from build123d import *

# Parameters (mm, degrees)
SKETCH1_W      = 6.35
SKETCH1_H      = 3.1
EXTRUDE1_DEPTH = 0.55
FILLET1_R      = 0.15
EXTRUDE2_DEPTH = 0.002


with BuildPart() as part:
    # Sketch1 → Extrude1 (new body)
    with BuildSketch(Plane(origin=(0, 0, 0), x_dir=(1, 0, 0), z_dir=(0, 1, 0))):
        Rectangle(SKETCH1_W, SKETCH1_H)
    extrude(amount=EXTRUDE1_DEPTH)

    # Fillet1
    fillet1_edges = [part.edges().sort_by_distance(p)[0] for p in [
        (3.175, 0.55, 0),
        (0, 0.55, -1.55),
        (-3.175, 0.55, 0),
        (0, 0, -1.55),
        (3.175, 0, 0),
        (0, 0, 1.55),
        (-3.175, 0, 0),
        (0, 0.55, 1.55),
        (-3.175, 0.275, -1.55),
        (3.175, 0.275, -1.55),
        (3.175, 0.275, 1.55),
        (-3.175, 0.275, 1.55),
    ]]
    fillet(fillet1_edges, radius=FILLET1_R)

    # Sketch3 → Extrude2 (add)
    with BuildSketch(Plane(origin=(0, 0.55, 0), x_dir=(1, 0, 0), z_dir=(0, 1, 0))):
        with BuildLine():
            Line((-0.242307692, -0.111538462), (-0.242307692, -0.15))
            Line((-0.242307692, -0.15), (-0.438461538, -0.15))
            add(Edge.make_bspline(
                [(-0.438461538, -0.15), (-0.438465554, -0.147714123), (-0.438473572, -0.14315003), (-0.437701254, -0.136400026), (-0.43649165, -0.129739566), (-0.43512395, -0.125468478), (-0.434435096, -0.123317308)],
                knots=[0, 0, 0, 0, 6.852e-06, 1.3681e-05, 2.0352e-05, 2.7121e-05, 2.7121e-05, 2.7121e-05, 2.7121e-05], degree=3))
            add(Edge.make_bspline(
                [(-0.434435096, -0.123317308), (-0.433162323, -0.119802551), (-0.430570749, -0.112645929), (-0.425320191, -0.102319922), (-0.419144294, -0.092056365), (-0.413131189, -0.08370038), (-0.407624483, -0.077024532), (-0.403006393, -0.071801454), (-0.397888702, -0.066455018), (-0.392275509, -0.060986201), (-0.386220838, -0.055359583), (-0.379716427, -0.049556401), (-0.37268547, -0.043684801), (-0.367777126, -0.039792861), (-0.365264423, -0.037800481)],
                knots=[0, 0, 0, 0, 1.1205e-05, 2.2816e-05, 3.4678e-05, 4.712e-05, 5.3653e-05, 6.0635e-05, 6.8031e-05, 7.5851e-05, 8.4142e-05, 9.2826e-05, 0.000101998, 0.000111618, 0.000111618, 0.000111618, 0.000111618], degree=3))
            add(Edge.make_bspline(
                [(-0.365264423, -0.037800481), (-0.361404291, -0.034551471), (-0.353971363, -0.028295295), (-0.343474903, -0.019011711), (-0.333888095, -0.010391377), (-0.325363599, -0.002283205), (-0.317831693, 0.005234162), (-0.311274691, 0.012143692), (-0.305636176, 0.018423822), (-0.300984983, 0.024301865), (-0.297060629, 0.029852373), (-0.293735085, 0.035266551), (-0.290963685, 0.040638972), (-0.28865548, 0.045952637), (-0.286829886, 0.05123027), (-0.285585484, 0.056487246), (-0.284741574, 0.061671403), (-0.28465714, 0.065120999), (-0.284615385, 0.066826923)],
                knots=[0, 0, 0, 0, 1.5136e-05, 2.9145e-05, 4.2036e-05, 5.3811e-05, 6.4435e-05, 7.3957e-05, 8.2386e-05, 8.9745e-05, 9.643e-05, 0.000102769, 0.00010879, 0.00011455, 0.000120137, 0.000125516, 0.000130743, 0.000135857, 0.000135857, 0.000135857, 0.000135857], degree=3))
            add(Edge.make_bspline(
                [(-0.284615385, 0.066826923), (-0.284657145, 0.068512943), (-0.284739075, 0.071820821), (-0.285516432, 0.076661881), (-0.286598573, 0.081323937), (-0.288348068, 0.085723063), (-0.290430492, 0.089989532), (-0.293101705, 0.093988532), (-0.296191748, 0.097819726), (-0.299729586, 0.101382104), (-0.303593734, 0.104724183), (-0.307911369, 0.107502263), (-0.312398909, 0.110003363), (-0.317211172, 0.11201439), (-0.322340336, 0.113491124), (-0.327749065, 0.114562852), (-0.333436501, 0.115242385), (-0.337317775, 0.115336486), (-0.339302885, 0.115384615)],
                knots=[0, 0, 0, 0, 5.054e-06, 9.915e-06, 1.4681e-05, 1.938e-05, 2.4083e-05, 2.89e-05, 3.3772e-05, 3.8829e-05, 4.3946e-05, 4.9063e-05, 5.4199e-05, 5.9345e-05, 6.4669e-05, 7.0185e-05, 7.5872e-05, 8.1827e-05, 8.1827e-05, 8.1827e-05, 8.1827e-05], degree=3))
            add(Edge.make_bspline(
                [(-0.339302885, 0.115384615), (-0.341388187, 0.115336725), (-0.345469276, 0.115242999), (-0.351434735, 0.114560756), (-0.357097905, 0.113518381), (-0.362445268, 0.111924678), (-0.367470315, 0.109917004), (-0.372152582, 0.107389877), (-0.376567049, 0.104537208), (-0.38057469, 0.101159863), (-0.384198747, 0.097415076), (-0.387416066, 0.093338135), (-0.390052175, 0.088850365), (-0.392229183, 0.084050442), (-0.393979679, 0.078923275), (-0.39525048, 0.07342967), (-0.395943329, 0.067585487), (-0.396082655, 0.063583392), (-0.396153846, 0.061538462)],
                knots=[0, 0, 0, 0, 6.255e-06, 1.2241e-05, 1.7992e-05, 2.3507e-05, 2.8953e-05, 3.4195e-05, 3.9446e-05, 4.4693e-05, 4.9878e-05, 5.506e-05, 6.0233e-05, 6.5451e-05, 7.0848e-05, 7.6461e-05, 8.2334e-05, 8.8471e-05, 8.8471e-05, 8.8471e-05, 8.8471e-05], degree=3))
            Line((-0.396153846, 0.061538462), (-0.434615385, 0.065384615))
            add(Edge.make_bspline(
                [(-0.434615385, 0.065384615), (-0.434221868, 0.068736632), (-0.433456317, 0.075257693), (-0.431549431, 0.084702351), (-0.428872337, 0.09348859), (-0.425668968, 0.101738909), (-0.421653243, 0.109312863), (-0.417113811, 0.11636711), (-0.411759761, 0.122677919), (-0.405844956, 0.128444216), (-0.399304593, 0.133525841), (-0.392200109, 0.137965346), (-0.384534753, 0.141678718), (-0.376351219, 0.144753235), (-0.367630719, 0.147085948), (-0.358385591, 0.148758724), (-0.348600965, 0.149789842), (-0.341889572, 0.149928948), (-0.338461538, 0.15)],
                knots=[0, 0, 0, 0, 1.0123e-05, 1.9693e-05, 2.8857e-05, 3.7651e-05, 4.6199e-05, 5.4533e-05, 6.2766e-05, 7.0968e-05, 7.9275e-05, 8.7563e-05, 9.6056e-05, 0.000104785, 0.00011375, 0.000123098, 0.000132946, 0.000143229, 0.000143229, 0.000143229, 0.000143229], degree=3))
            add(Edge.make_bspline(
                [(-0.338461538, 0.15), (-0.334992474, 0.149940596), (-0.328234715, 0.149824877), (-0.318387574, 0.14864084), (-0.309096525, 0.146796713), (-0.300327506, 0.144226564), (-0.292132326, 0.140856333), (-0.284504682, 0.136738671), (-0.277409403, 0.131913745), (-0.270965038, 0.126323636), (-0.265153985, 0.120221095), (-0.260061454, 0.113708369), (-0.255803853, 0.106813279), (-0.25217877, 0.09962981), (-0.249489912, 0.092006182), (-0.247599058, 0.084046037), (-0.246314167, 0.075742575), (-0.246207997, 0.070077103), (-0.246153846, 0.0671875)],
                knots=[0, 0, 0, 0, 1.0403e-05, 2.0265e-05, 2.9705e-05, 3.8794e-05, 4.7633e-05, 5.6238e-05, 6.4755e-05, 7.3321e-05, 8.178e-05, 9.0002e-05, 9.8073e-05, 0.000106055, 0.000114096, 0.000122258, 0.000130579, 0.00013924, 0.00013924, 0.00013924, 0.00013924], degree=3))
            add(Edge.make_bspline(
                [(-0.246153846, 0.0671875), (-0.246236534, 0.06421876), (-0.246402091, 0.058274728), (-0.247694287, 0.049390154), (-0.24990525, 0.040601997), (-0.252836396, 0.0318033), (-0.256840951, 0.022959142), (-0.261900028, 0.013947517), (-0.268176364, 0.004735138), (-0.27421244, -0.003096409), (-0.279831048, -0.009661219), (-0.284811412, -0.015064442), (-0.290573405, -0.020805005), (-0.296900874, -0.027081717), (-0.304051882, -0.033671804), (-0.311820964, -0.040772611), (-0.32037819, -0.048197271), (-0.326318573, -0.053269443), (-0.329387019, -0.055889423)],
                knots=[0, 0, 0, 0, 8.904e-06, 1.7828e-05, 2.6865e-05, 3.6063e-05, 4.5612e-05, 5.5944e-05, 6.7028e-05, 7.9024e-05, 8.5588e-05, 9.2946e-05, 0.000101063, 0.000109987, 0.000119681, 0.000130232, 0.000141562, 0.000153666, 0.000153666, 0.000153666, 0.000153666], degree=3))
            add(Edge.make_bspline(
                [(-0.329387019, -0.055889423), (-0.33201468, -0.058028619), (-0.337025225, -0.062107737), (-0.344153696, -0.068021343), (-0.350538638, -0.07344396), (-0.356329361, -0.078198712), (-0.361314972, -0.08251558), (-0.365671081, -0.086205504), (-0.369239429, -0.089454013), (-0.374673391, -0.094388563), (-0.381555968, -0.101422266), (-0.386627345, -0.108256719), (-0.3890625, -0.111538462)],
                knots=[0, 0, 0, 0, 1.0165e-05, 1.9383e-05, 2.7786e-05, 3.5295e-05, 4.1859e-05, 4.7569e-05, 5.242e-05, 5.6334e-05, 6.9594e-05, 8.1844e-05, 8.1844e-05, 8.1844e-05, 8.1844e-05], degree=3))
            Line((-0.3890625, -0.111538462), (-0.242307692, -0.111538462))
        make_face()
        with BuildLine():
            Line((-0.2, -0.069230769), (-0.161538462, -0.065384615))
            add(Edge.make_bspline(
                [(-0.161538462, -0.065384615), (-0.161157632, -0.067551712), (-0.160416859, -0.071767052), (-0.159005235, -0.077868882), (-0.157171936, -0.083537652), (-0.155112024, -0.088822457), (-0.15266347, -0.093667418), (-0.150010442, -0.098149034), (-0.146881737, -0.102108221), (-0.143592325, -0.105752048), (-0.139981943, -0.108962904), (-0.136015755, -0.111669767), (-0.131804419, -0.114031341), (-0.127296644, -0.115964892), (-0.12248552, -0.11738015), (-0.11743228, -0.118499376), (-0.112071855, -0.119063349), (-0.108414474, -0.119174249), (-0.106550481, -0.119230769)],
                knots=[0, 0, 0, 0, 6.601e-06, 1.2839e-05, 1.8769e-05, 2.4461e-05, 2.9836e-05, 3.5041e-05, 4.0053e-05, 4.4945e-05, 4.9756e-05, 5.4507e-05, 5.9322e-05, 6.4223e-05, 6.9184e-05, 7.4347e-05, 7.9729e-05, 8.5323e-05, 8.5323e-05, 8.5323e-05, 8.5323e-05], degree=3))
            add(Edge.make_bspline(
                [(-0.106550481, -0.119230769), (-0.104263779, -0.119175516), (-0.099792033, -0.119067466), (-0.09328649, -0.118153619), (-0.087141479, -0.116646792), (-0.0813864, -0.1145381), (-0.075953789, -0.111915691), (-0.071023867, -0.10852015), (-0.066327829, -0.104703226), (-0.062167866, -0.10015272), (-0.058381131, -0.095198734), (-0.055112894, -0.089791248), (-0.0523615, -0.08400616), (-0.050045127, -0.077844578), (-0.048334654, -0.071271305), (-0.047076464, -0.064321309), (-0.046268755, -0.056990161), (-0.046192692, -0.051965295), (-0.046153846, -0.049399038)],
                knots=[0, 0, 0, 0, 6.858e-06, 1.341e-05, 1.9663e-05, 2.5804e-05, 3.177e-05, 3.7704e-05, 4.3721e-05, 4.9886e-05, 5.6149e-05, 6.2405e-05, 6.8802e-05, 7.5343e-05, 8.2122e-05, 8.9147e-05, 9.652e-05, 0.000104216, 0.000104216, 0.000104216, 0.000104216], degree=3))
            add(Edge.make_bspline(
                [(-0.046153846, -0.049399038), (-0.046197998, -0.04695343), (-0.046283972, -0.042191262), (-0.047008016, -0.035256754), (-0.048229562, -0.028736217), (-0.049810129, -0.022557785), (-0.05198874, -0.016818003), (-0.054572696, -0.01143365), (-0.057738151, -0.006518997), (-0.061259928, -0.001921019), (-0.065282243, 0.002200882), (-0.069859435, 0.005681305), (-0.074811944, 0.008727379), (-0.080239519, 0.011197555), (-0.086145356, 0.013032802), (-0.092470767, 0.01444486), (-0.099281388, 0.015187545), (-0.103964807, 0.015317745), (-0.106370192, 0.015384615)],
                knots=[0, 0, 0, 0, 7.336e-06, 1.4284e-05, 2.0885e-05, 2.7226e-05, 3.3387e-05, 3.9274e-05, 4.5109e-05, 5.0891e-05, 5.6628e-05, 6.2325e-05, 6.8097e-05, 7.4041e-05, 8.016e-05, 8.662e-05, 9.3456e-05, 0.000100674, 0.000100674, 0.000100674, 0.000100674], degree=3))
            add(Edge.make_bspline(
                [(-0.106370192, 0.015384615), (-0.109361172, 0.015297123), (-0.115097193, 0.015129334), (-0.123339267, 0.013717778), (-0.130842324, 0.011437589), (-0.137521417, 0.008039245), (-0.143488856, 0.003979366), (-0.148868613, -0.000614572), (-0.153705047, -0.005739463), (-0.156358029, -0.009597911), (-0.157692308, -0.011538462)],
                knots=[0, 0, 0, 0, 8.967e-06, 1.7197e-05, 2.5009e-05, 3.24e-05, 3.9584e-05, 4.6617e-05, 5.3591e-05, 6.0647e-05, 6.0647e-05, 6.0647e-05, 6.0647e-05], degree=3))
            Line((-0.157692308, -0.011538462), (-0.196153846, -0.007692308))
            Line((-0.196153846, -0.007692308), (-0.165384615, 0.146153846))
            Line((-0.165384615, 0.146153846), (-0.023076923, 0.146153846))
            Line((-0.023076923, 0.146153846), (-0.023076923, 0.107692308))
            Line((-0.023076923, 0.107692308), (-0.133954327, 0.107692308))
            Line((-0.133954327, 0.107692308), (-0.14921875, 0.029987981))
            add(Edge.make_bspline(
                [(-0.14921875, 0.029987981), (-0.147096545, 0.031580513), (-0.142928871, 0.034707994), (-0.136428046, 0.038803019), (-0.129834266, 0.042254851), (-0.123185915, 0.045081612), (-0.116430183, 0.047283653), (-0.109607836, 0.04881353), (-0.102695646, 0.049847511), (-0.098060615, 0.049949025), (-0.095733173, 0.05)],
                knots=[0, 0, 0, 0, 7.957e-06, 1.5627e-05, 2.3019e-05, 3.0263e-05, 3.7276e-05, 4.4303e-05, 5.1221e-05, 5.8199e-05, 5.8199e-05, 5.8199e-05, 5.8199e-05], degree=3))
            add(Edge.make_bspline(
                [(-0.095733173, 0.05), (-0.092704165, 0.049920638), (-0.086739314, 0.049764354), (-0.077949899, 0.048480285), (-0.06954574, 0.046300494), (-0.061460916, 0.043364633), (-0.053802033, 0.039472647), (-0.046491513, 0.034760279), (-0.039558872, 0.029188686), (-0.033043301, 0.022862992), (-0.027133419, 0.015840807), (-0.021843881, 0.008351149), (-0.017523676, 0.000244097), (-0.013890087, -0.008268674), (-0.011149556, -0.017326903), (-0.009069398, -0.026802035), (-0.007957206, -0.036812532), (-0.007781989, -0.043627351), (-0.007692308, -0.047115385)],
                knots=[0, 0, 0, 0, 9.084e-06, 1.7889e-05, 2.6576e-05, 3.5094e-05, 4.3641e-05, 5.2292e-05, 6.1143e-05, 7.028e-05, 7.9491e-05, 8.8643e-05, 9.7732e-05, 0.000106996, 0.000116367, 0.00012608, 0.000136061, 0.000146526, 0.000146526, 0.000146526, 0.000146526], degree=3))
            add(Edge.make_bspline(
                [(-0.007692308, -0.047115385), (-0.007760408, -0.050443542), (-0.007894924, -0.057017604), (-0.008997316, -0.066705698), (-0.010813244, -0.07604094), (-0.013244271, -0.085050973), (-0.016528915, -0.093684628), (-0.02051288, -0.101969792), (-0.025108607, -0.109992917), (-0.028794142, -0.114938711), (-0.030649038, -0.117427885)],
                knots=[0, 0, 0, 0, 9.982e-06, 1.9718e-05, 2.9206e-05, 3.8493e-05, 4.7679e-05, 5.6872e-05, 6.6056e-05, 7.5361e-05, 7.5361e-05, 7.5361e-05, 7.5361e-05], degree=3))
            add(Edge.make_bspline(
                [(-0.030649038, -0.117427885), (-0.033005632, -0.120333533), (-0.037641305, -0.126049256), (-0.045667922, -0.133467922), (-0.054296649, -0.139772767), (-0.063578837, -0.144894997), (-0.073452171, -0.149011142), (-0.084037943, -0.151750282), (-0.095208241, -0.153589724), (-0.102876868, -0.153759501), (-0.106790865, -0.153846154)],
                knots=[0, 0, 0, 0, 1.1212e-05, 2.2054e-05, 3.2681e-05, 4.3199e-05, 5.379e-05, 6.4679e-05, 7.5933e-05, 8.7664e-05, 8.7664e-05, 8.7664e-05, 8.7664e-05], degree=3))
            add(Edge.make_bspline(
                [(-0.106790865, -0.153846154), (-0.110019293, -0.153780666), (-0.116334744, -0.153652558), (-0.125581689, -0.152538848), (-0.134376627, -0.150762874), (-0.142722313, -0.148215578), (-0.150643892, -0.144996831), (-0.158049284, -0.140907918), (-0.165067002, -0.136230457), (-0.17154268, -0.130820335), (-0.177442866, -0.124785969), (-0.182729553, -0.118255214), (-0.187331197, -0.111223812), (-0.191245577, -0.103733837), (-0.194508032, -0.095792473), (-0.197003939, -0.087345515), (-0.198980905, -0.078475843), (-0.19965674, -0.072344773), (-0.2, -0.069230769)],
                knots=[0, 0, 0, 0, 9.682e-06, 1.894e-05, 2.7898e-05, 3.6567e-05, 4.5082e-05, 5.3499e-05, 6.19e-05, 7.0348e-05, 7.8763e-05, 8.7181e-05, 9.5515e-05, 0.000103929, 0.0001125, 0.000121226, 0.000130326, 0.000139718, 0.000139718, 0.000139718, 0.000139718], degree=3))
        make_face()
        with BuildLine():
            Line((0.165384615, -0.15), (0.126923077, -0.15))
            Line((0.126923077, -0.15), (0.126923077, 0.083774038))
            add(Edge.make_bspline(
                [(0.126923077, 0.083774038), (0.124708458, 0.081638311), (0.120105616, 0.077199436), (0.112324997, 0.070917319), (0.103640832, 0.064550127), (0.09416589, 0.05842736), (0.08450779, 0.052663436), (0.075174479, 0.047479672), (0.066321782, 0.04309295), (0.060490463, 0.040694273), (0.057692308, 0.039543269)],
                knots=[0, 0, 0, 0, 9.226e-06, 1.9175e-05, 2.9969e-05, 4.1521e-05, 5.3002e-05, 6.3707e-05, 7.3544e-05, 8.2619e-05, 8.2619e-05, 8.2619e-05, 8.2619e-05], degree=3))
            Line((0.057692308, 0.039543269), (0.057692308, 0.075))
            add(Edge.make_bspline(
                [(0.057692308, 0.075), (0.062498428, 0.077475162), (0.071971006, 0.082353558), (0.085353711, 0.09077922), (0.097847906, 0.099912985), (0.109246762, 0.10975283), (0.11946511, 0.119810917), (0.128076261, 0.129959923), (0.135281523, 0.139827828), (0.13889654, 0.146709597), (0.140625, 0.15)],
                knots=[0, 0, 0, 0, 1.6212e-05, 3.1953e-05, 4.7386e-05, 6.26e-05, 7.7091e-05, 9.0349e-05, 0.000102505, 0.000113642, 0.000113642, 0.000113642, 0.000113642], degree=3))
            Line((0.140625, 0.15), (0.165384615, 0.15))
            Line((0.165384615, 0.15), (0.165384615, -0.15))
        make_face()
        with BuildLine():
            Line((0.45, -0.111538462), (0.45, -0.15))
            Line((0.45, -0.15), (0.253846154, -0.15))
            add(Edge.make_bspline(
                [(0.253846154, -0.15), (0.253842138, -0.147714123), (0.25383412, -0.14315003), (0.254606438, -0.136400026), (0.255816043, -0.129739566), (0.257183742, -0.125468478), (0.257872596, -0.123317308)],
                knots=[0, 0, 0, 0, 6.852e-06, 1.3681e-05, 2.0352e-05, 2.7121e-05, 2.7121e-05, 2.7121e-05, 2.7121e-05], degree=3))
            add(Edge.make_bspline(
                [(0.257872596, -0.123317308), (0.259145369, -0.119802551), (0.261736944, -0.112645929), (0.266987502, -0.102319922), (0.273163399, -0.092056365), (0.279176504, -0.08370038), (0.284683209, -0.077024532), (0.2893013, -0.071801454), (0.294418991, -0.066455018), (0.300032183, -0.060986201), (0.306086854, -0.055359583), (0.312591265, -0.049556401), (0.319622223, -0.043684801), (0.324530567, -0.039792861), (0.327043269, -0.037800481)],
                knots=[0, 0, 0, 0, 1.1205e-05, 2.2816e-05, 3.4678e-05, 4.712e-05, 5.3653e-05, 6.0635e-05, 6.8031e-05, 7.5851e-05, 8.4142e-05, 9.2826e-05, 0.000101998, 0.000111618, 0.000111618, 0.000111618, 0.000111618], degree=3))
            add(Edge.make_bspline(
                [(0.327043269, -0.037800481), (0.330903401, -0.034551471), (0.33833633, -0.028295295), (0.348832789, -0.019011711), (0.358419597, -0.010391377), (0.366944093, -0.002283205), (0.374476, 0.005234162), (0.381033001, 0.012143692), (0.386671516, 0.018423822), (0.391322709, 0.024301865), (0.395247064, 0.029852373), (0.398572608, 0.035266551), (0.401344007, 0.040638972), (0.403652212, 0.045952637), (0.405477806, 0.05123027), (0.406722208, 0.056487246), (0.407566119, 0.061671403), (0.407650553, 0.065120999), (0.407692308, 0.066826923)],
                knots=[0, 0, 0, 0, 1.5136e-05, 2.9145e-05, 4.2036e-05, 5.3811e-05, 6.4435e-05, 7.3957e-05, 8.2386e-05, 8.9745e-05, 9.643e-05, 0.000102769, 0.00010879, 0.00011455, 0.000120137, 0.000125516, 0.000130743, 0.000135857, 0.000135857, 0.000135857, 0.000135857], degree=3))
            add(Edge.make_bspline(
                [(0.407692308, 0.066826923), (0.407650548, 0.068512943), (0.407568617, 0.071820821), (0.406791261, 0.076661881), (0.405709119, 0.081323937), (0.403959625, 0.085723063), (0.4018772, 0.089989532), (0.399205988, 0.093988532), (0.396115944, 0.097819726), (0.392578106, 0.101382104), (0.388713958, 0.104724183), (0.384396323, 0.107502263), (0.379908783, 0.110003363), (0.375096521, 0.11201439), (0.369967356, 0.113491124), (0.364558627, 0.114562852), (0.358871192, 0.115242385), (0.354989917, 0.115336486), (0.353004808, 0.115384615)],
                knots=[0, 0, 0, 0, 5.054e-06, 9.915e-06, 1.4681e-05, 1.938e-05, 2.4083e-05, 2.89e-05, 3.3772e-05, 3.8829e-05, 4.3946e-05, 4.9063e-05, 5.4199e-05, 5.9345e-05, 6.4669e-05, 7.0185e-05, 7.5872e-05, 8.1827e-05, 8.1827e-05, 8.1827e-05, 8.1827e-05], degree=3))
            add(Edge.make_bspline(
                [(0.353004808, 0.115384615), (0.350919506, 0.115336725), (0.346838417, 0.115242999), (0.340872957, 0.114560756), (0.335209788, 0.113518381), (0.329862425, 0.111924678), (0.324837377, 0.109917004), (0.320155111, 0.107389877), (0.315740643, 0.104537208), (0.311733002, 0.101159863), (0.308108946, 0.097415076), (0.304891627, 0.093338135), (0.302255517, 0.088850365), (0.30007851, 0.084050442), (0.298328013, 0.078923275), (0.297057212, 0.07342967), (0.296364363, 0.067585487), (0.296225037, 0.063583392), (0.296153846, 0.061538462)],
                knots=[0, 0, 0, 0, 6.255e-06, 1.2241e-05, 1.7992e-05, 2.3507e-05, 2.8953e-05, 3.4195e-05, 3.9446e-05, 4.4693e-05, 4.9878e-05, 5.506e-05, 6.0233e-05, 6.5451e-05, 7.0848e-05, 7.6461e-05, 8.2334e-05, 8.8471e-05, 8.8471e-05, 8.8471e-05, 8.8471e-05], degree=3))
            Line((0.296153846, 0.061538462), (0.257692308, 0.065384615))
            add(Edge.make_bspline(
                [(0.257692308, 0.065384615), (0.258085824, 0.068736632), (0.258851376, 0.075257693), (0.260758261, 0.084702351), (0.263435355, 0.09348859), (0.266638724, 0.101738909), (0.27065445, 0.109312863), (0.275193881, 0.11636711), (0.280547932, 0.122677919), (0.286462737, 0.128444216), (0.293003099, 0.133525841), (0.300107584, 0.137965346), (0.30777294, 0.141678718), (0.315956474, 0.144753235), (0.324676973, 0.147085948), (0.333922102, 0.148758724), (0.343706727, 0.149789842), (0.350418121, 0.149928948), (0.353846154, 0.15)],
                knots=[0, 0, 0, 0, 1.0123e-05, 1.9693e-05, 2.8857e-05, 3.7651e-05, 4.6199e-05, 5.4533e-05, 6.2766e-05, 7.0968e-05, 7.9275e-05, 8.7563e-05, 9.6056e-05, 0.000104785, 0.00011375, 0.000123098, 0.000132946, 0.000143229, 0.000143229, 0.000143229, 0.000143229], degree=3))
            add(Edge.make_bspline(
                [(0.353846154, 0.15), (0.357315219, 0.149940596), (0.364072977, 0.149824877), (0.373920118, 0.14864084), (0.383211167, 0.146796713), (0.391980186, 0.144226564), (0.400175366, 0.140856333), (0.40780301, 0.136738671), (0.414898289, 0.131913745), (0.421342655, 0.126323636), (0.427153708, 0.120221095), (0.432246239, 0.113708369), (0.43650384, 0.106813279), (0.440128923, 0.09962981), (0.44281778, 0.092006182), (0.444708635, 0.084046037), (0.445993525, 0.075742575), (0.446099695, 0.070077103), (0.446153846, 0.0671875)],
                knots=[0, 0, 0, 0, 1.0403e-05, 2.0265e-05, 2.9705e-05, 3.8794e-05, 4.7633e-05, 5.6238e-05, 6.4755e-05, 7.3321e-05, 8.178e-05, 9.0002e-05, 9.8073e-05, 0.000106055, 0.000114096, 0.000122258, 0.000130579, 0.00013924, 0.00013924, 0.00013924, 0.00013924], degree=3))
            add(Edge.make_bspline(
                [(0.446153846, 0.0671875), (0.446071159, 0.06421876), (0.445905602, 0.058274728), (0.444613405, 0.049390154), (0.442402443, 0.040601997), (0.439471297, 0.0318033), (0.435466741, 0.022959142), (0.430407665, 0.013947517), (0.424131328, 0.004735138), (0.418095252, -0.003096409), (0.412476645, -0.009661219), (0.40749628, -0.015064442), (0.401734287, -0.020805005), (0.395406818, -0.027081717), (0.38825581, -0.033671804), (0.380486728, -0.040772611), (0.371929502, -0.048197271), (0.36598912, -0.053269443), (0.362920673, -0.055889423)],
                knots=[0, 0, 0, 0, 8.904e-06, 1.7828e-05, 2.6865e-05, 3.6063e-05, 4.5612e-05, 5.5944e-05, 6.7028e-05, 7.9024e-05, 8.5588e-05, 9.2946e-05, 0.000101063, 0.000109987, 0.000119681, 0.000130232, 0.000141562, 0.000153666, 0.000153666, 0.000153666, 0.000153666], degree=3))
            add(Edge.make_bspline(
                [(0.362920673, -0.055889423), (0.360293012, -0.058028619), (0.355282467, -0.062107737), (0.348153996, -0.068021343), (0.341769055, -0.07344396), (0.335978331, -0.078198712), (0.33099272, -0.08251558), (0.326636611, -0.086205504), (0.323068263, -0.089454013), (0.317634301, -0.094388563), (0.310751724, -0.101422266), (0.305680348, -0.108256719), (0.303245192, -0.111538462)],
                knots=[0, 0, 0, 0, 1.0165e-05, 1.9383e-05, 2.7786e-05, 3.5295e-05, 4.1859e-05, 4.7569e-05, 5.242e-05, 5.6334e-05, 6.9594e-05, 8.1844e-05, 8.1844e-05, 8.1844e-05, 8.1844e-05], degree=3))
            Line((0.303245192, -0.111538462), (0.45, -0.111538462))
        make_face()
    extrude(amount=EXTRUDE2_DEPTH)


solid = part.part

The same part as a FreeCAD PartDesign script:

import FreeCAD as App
import Part
import Sketcher
from FreeCAD import Vector
Q = App.Units.Quantity


def add_polygon(sketch, points):
    """Adds a closed chain of lines whose ends are joined by coincident constraints."""
    first, n = sketch.GeometryCount, len(points)
    for a, b in zip(points, points[1:] + points[:1]):
        sketch.addGeometry(Part.LineSegment(App.Vector(*a, 0), App.Vector(*b, 0)), False)
    for i in range(n):
        sketch.addConstraint(Sketcher.Constraint("Coincident", first + i, 2, first + (i + 1) % n, 1))

doc = App.newDocument("Part")
body = doc.addObject("PartDesign::Body", "Body")

sketch1 = body.newObject("Sketcher::SketchObject", "Sketch")
sketch1.AttachmentSupport = (doc.getObject("XZ_Plane"), [""])
sketch1.MapMode = "FlatFace"
add_polygon(sketch1, [(-3.2, -1.6), (-3.2, 1.6), (3.2, 1.6), (3.2, -1.6)])
sketch1.addConstraint([
    Sketcher.Constraint("Vertical", 0),
    Sketcher.Constraint("Horizontal", 1),
    Sketcher.Constraint("Vertical", 2),
    Sketcher.Constraint("Horizontal", 3),
    Sketcher.Constraint("Symmetric", 0, 2, 2, 2, -1, 1),
    Sketcher.Constraint("DistanceY", 0, 1, 0, 2, Q("3.1 mm")),
    Sketcher.Constraint("DistanceX", 1, 1, 1, 2, Q("6.35 mm")),
])
pad1 = body.newObject("PartDesign::Pad", "Pad")
pad1.Profile = sketch1
pad1.Length = 0.55
pad1.Reversed = True
doc.recompute()

fillet = body.newObject("PartDesign::Fillet", "Fillet")
fillet.Base = (pad1, ["Edge1"])
fillet.UseAllEdges = True
fillet.Radius = 0.15

sketch2 = body.newObject("Sketcher::SketchObject", "Sketch001")
sketch2.AttachmentSupport = (doc.getObject("XZ_Plane"), [""])
sketch2.MapMode = "FlatFace"
sketch2.AttachmentOffset = App.Placement(Vector(0, 0, -0.55), App.Rotation())
sketch2.addGeometry([
    Part.LineSegment(Vector(-0.242308, 0.15, 0), Vector(-0.242308, 0.111538, 0)),
    Part.LineSegment(Vector(-0.242308, 0.111538, 0), Vector(-0.389062, 0.111538, 0)),
    Part.BSplineCurve([Vector(-0.329387, 0.055889, 0), Vector(-0.332015, 0.058029, 0), Vector(-0.337025, 0.062108, 0), Vector(-0.344154, 0.068021, 0), Vector(-0.350539, 0.073444, 0), Vector(-0.356329, 0.078199, 0), Vector(-0.361315, 0.082516, 0), Vector(-0.365671, 0.086206, 0), Vector(-0.369239, 0.089454, 0), Vector(-0.374673, 0.094389, 0), Vector(-0.381556, 0.101422, 0), Vector(-0.386627, 0.108257, 0), Vector(-0.389062, 0.111538, 0)], [4, 1, 1, 1, 1, 1, 1, 1, 1, 1, 4], [0, 0.000010165, 0.000019383, 0.000027786, 0.000035295, 0.000041859, 0.000047569, 0.00005242, 0.000056334, 0.000069594, 0.000081844], False, 3, [1, 1, 1, 1, 1, 1, 1, 1, 1, 1, 1, 1, 1], False),
    Part.BSplineCurve([Vector(-0.246154, -0.067187, 0), Vector(-0.246237, -0.064219, 0), Vector(-0.246402, -0.058275, 0), Vector(-0.247694, -0.04939, 0), Vector(-0.249905, -0.040602, 0), Vector(-0.252836, -0.031803, 0), Vector(-0.256841, -0.022959, 0), Vector(-0.2619, -0.013948, 0), Vector(-0.268176, -0.004735, 0), Vector(-0.274212, 0.003096, 0), Vector(-0.279831, 0.009661, 0), Vector(-0.284811, 0.015064, 0), Vector(-0.290573, 0.020805, 0), Vector(-0.296901, 0.027082, 0), Vector(-0.304052, 0.033672, 0), Vector(-0.311821, 0.040773, 0), Vector(-0.320378, 0.048197, 0), Vector(-0.326319, 0.053269, 0), Vector(-0.329387, 0.055889, 0)], [4, 1, 1, 1, 1, 1, 1, 1, 1, 1, 1, 1, 1, 1, 1, 1, 4], [0, 0.000008904, 0.000017828, 0.000026865, 0.000036063, 0.000045612, 0.000055944, 0.000067028, 0.000079024, 0.000085588, 0.000092946, 0.000101063, 0.000109987, 0.000119681, 0.000130232, 0.000141562, 0.000153666], False, 3, [1, 1, 1, 1, 1, 1, 1, 1, 1, 1, 1, 1, 1, 1, 1, 1, 1, 1, 1], False),
    Part.BSplineCurve([Vector(-0.338462, -0.15, 0), Vector(-0.334992, -0.149941, 0), Vector(-0.328235, -0.149825, 0), Vector(-0.318388, -0.148641, 0), Vector(-0.309097, -0.146797, 0), Vector(-0.300328, -0.144227, 0), Vector(-0.292132, -0.140856, 0), Vector(-0.284505, -0.136739, 0), Vector(-0.277409, -0.131914, 0), Vector(-0.270965, -0.126324, 0), Vector(-0.265154, -0.120221, 0), Vector(-0.260061, -0.113708, 0), Vector(-0.255804, -0.106813, 0), Vector(-0.252179, -0.09963, 0), Vector(-0.24949, -0.092006, 0), Vector(-0.247599, -0.084046, 0), Vector(-0.246314, -0.075743, 0), Vector(-0.246208, -0.070077, 0), Vector(-0.246154, -0.067187, 0)], [4, 1, 1, 1, 1, 1, 1, 1, 1, 1, 1, 1, 1, 1, 1, 1, 4], [0, 0.000010403, 0.000020265, 0.000029705, 0.000038794, 0.000047633, 0.000056238, 0.000064755, 0.000073321, 0.00008178, 0.000090002, 0.000098073, 0.000106055, 0.000114096, 0.000122258, 0.000130579, 0.00013924], False, 3, [1, 1, 1, 1, 1, 1, 1, 1, 1, 1, 1, 1, 1, 1, 1, 1, 1, 1, 1], False),
    Part.BSplineCurve([Vector(-0.434615, -0.065385, 0), Vector(-0.434222, -0.068737, 0), Vector(-0.433456, -0.075258, 0), Vector(-0.431549, -0.084702, 0), Vector(-0.428872, -0.093489, 0), Vector(-0.425669, -0.101739, 0), Vector(-0.421653, -0.109313, 0), Vector(-0.417114, -0.116367, 0), Vector(-0.41176, -0.122678, 0), Vector(-0.405845, -0.128444, 0), Vector(-0.399305, -0.133526, 0), Vector(-0.3922, -0.137965, 0), Vector(-0.384535, -0.141679, 0), Vector(-0.376351, -0.144753, 0), Vector(-0.367631, -0.147086, 0), Vector(-0.358386, -0.148759, 0), Vector(-0.348601, -0.14979, 0), Vector(-0.34189, -0.149929, 0), Vector(-0.338462, -0.15, 0)], [4, 1, 1, 1, 1, 1, 1, 1, 1, 1, 1, 1, 1, 1, 1, 1, 4], [0, 0.000010123, 0.000019693, 0.000028857, 0.000037651, 0.000046199, 0.000054533, 0.000062766, 0.000070968, 0.000079275, 0.000087563, 0.000096056, 0.000104785, 0.00011375, 0.000123098, 0.000132946, 0.000143229], False, 3, [1, 1, 1, 1, 1, 1, 1, 1, 1, 1, 1, 1, 1, 1, 1, 1, 1, 1, 1], False),
    Part.LineSegment(Vector(-0.434615, -0.065385, 0), Vector(-0.396154, -0.061538, 0)),
    Part.BSplineCurve([Vector(-0.339303, -0.115385, 0), Vector(-0.341388, -0.115337, 0), Vector(-0.345469, -0.115243, 0), Vector(-0.351435, -0.114561, 0), Vector(-0.357098, -0.113518, 0), Vector(-0.362445, -0.111925, 0), Vector(-0.36747, -0.109917, 0), Vector(-0.372153, -0.10739, 0), Vector(-0.376567, -0.104537, 0), Vector(-0.380575, -0.10116, 0), Vector(-0.384199, -0.097415, 0), Vector(-0.387416, -0.093338, 0), Vector(-0.390052, -0.08885, 0), Vector(-0.392229, -0.08405, 0), Vector(-0.39398, -0.078923, 0), Vector(-0.39525, -0.07343, 0), Vector(-0.395943, -0.067585, 0), Vector(-0.396083, -0.063583, 0), Vector(-0.396154, -0.061538, 0)], [4, 1, 1, 1, 1, 1, 1, 1, 1, 1, 1, 1, 1, 1, 1, 1, 4], [0, 0.000006255, 0.000012241, 0.000017992, 0.000023507, 0.000028953, 0.000034195, 0.000039446, 0.000044693, 0.000049878, 0.00005506, 0.000060233, 0.000065451, 0.000070848, 0.000076461, 0.000082334, 0.000088471], False, 3, [1, 1, 1, 1, 1, 1, 1, 1, 1, 1, 1, 1, 1, 1, 1, 1, 1, 1, 1], False),
    Part.BSplineCurve([Vector(-0.284615, -0.066827, 0), Vector(-0.284657, -0.068513, 0), Vector(-0.284739, -0.071821, 0), Vector(-0.285516, -0.076662, 0), Vector(-0.286599, -0.081324, 0), Vector(-0.288348, -0.085723, 0), Vector(-0.29043, -0.08999, 0), Vector(-0.293102, -0.093989, 0), Vector(-0.296192, -0.09782, 0), Vector(-0.29973, -0.101382, 0), Vector(-0.303594, -0.104724, 0), Vector(-0.307911, -0.107502, 0), Vector(-0.312399, -0.110003, 0), Vector(-0.317211, -0.112014, 0), Vector(-0.32234, -0.113491, 0), Vector(-0.327749, -0.114563, 0), Vector(-0.333437, -0.115242, 0), Vector(-0.337318, -0.115336, 0), Vector(-0.339303, -0.115385, 0)], [4, 1, 1, 1, 1, 1, 1, 1, 1, 1, 1, 1, 1, 1, 1, 1, 4], [0, 0.000005054, 0.000009915, 0.000014681, 0.00001938, 0.000024083, 0.0000289, 0.000033772, 0.000038829, 0.000043946, 0.000049063, 0.000054199, 0.000059345, 0.000064669, 0.000070185, 0.000075872, 0.000081827], False, 3, [1, 1, 1, 1, 1, 1, 1, 1, 1, 1, 1, 1, 1, 1, 1, 1, 1, 1, 1], False),
    Part.BSplineCurve([Vector(-0.365264, 0.0378, 0), Vector(-0.361404, 0.034551, 0), Vector(-0.353971, 0.028295, 0), Vector(-0.343475, 0.019012, 0), Vector(-0.333888, 0.010391, 0), Vector(-0.325364, 0.002283, 0), Vector(-0.317832, -0.005234, 0), Vector(-0.311275, -0.012144, 0), Vector(-0.305636, -0.018424, 0), Vector(-0.300985, -0.024302, 0), Vector(-0.297061, -0.029852, 0), Vector(-0.293735, -0.035267, 0), Vector(-0.290964, -0.040639, 0), Vector(-0.288655, -0.045953, 0), Vector(-0.28683, -0.05123, 0), Vector(-0.285585, -0.056487, 0), Vector(-0.284742, -0.061671, 0), Vector(-0.284657, -0.065121, 0), Vector(-0.284615, -0.066827, 0)], [4, 1, 1, 1, 1, 1, 1, 1, 1, 1, 1, 1, 1, 1, 1, 1, 4], [0, 0.000015136, 0.000029145, 0.000042036, 0.000053811, 0.000064435, 0.000073957, 0.000082386, 0.000089745, 0.00009643, 0.000102769, 0.00010879, 0.00011455, 0.000120137, 0.000125516, 0.000130743, 0.000135857], False, 3, [1, 1, 1, 1, 1, 1, 1, 1, 1, 1, 1, 1, 1, 1, 1, 1, 1, 1, 1], False),
    Part.BSplineCurve([Vector(-0.434435, 0.123317, 0), Vector(-0.433162, 0.119803, 0), Vector(-0.430571, 0.112646, 0), Vector(-0.42532, 0.10232, 0), Vector(-0.419144, 0.092056, 0), Vector(-0.413131, 0.0837, 0), Vector(-0.407624, 0.077025, 0), Vector(-0.403006, 0.071801, 0), Vector(-0.397889, 0.066455, 0), Vector(-0.392276, 0.060986, 0), Vector(-0.386221, 0.05536, 0), Vector(-0.379716, 0.049556, 0), Vector(-0.372685, 0.043685, 0), Vector(-0.367777, 0.039793, 0), Vector(-0.365264, 0.0378, 0)], [4, 1, 1, 1, 1, 1, 1, 1, 1, 1, 1, 1, 4], [0, 0.000011205, 0.000022816, 0.000034678, 0.00004712, 0.000053653, 0.000060635, 0.000068031, 0.000075851, 0.000084142, 0.000092826, 0.000101998, 0.000111618], False, 3, [1, 1, 1, 1, 1, 1, 1, 1, 1, 1, 1, 1, 1, 1, 1], False),
    Part.BSplineCurve([Vector(-0.438462, 0.15, 0), Vector(-0.438466, 0.147714, 0), Vector(-0.438474, 0.14315, 0), Vector(-0.437701, 0.1364, 0), Vector(-0.436492, 0.12974, 0), Vector(-0.435124, 0.125468, 0), Vector(-0.434435, 0.123317, 0)], [4, 1, 1, 1, 4], [0, 0.000006852, 0.000013681, 0.000020352, 0.000027121], False, 3, [1, 1, 1, 1, 1, 1, 1], False),
    Part.LineSegment(Vector(-0.438462, 0.15, 0), Vector(-0.242308, 0.15, 0)),
    Part.LineSegment(Vector(-0.161538, 0.065385, 0), Vector(-0.2, 0.069231, 0)),
    Part.BSplineCurve([Vector(-0.106791, 0.153846, 0), Vector(-0.110019, 0.153781, 0), Vector(-0.116335, 0.153653, 0), Vector(-0.125582, 0.152539, 0), Vector(-0.134377, 0.150763, 0), Vector(-0.142722, 0.148216, 0), Vector(-0.150644, 0.144997, 0), Vector(-0.158049, 0.140908, 0), Vector(-0.165067, 0.13623, 0), Vector(-0.171543, 0.13082, 0), Vector(-0.177443, 0.124786, 0), Vector(-0.18273, 0.118255, 0), Vector(-0.187331, 0.111224, 0), Vector(-0.191246, 0.103734, 0), Vector(-0.194508, 0.095792, 0), Vector(-0.197004, 0.087346, 0), Vector(-0.198981, 0.078476, 0), Vector(-0.199657, 0.072345, 0), Vector(-0.2, 0.069231, 0)], [4, 1, 1, 1, 1, 1, 1, 1, 1, 1, 1, 1, 1, 1, 1, 1, 4], [0, 0.000009682, 0.00001894, 0.000027898, 0.000036567, 0.000045082, 0.000053499, 0.0000619, 0.000070348, 0.000078763, 0.000087181, 0.000095515, 0.000103929, 0.0001125, 0.000121226, 0.000130326, 0.000139718], False, 3, [1, 1, 1, 1, 1, 1, 1, 1, 1, 1, 1, 1, 1, 1, 1, 1, 1, 1, 1], False),
    Part.BSplineCurve([Vector(-0.030649, 0.117428, 0), Vector(-0.033006, 0.120334, 0), Vector(-0.037641, 0.126049, 0), Vector(-0.045668, 0.133468, 0), Vector(-0.054297, 0.139773, 0), Vector(-0.063579, 0.144895, 0), Vector(-0.073452, 0.149011, 0), Vector(-0.084038, 0.15175, 0), Vector(-0.095208, 0.15359, 0), Vector(-0.102877, 0.15376, 0), Vector(-0.106791, 0.153846, 0)], [4, 1, 1, 1, 1, 1, 1, 1, 4], [0, 0.000011212, 0.000022054, 0.000032681, 0.000043199, 0.00005379, 0.000064679, 0.000075933, 0.000087664], False, 3, [1, 1, 1, 1, 1, 1, 1, 1, 1, 1, 1], False),
    Part.BSplineCurve([Vector(-0.007692, 0.047115, 0), Vector(-0.00776, 0.050444, 0), Vector(-0.007895, 0.057018, 0), Vector(-0.008997, 0.066706, 0), Vector(-0.010813, 0.076041, 0), Vector(-0.013244, 0.085051, 0), Vector(-0.016529, 0.093685, 0), Vector(-0.020513, 0.10197, 0), Vector(-0.025109, 0.109993, 0), Vector(-0.028794, 0.114939, 0), Vector(-0.030649, 0.117428, 0)], [4, 1, 1, 1, 1, 1, 1, 1, 4], [0, 0.000009982, 0.000019718, 0.000029206, 0.000038493, 0.000047679, 0.000056872, 0.000066056, 0.000075361], False, 3, [1, 1, 1, 1, 1, 1, 1, 1, 1, 1, 1], False),
    Part.BSplineCurve([Vector(-0.095733, -0.05, 0), Vector(-0.092704, -0.049921, 0), Vector(-0.086739, -0.049764, 0), Vector(-0.07795, -0.04848, 0), Vector(-0.069546, -0.0463, 0), Vector(-0.061461, -0.043365, 0), Vector(-0.053802, -0.039473, 0), Vector(-0.046492, -0.03476, 0), Vector(-0.039559, -0.029189, 0), Vector(-0.033043, -0.022863, 0), Vector(-0.027133, -0.015841, 0), Vector(-0.021844, -0.008351, 0), Vector(-0.017524, -0.000244, 0), Vector(-0.01389, 0.008269, 0), Vector(-0.01115, 0.017327, 0), Vector(-0.009069, 0.026802, 0), Vector(-0.007957, 0.036813, 0), Vector(-0.007782, 0.043627, 0), Vector(-0.007692, 0.047115, 0)], [4, 1, 1, 1, 1, 1, 1, 1, 1, 1, 1, 1, 1, 1, 1, 1, 4], [0, 0.000009084, 0.000017889, 0.000026576, 0.000035094, 0.000043641, 0.000052292, 0.000061143, 0.00007028, 0.000079491, 0.000088643, 0.000097732, 0.000106996, 0.000116367, 0.00012608, 0.000136061, 0.000146526], False, 3, [1, 1, 1, 1, 1, 1, 1, 1, 1, 1, 1, 1, 1, 1, 1, 1, 1, 1, 1], False),
    Part.BSplineCurve([Vector(-0.149219, -0.029988, 0), Vector(-0.147097, -0.031581, 0), Vector(-0.142929, -0.034708, 0), Vector(-0.136428, -0.038803, 0), Vector(-0.129834, -0.042255, 0), Vector(-0.123186, -0.045082, 0), Vector(-0.11643, -0.047284, 0), Vector(-0.109608, -0.048814, 0), Vector(-0.102696, -0.049848, 0), Vector(-0.098061, -0.049949, 0), Vector(-0.095733, -0.05, 0)], [4, 1, 1, 1, 1, 1, 1, 1, 4], [0, 0.000007957, 0.000015627, 0.000023019, 0.000030263, 0.000037276, 0.000044303, 0.000051221, 0.000058199], False, 3, [1, 1, 1, 1, 1, 1, 1, 1, 1, 1, 1], False),
    Part.LineSegment(Vector(-0.149219, -0.029988, 0), Vector(-0.133954, -0.107692, 0)),
    Part.LineSegment(Vector(-0.133954, -0.107692, 0), Vector(-0.023077, -0.107692, 0)),
    Part.LineSegment(Vector(-0.023077, -0.107692, 0), Vector(-0.023077, -0.146154, 0)),
    Part.LineSegment(Vector(-0.023077, -0.146154, 0), Vector(-0.165385, -0.146154, 0)),
    Part.LineSegment(Vector(-0.165385, -0.146154, 0), Vector(-0.196154, 0.007692, 0)),
    Part.LineSegment(Vector(-0.196154, 0.007692, 0), Vector(-0.157692, 0.011538, 0)),
    Part.BSplineCurve([Vector(-0.10637, -0.015385, 0), Vector(-0.109361, -0.015297, 0), Vector(-0.115097, -0.015129, 0), Vector(-0.123339, -0.013718, 0), Vector(-0.130842, -0.011438, 0), Vector(-0.137521, -0.008039, 0), Vector(-0.143489, -0.003979, 0), Vector(-0.148869, 0.000615, 0), Vector(-0.153705, 0.005739, 0), Vector(-0.156358, 0.009598, 0), Vector(-0.157692, 0.011538, 0)], [4, 1, 1, 1, 1, 1, 1, 1, 4], [0, 0.000008967, 0.000017197, 0.000025009, 0.0000324, 0.000039584, 0.000046617, 0.000053591, 0.000060647], False, 3, [1, 1, 1, 1, 1, 1, 1, 1, 1, 1, 1], False),
    Part.BSplineCurve([Vector(-0.046154, 0.049399, 0), Vector(-0.046198, 0.046953, 0), Vector(-0.046284, 0.042191, 0), Vector(-0.047008, 0.035257, 0), Vector(-0.04823, 0.028736, 0), Vector(-0.04981, 0.022558, 0), Vector(-0.051989, 0.016818, 0), Vector(-0.054573, 0.011434, 0), Vector(-0.057738, 0.006519, 0), Vector(-0.06126, 0.001921, 0), Vector(-0.065282, -0.002201, 0), Vector(-0.069859, -0.005681, 0), Vector(-0.074812, -0.008727, 0), Vector(-0.08024, -0.011198, 0), Vector(-0.086145, -0.013033, 0), Vector(-0.092471, -0.014445, 0), Vector(-0.099281, -0.015188, 0), Vector(-0.103965, -0.015318, 0), Vector(-0.10637, -0.015385, 0)], [4, 1, 1, 1, 1, 1, 1, 1, 1, 1, 1, 1, 1, 1, 1, 1, 4], [0, 0.000007336, 0.000014284, 0.000020885, 0.000027226, 0.000033387, 0.000039274, 0.000045109, 0.000050891, 0.000056628, 0.000062325, 0.000068097, 0.000074041, 0.00008016, 0.00008662, 0.000093456, 0.000100674], False, 3, [1, 1, 1, 1, 1, 1, 1, 1, 1, 1, 1, 1, 1, 1, 1, 1, 1, 1, 1], False),
    Part.BSplineCurve([Vector(-0.10655, 0.119231, 0), Vector(-0.104264, 0.119176, 0), Vector(-0.099792, 0.119067, 0), Vector(-0.093286, 0.118154, 0), Vector(-0.087141, 0.116647, 0), Vector(-0.081386, 0.114538, 0), Vector(-0.075954, 0.111916, 0), Vector(-0.071024, 0.10852, 0), Vector(-0.066328, 0.104703, 0), Vector(-0.062168, 0.100153, 0), Vector(-0.058381, 0.095199, 0), Vector(-0.055113, 0.089791, 0), Vector(-0.052361, 0.084006, 0), Vector(-0.050045, 0.077845, 0), Vector(-0.048335, 0.071271, 0), Vector(-0.047076, 0.064321, 0), Vector(-0.046269, 0.05699, 0), Vector(-0.046193, 0.051965, 0), Vector(-0.046154, 0.049399, 0)], [4, 1, 1, 1, 1, 1, 1, 1, 1, 1, 1, 1, 1, 1, 1, 1, 4], [0, 0.000006858, 0.00001341, 0.000019663, 0.000025804, 0.00003177, 0.000037704, 0.000043721, 0.000049886, 0.000056149, 0.000062405, 0.000068802, 0.000075343, 0.000082122, 0.000089147, 0.00009652, 0.000104216], False, 3, [1, 1, 1, 1, 1, 1, 1, 1, 1, 1, 1, 1, 1, 1, 1, 1, 1, 1, 1], False),
    Part.BSplineCurve([Vector(-0.161538, 0.065385, 0), Vector(-0.161158, 0.067552, 0), Vector(-0.160417, 0.071767, 0), Vector(-0.159005, 0.077869, 0), Vector(-0.157172, 0.083538, 0), Vector(-0.155112, 0.088822, 0), Vector(-0.152663, 0.093667, 0), Vector(-0.15001, 0.098149, 0), Vector(-0.146882, 0.102108, 0), Vector(-0.143592, 0.105752, 0), Vector(-0.139982, 0.108963, 0), Vector(-0.136016, 0.11167, 0), Vector(-0.131804, 0.114031, 0), Vector(-0.127297, 0.115965, 0), Vector(-0.122486, 0.11738, 0), Vector(-0.117432, 0.118499, 0), Vector(-0.112072, 0.119063, 0), Vector(-0.108414, 0.119174, 0), Vector(-0.10655, 0.119231, 0)], [4, 1, 1, 1, 1, 1, 1, 1, 1, 1, 1, 1, 1, 1, 1, 1, 4], [0, 0.000006601, 0.000012839, 0.000018769, 0.000024461, 0.000029836, 0.000035041, 0.000040053, 0.000044945, 0.000049756, 0.000054507, 0.000059322, 0.000064223, 0.000069184, 0.000074347, 0.000079729, 0.000085323], False, 3, [1, 1, 1, 1, 1, 1, 1, 1, 1, 1, 1, 1, 1, 1, 1, 1, 1, 1, 1], False),
    Part.LineSegment(Vector(0.126923, 0.15, 0), Vector(0.165385, 0.15, 0)),
    Part.LineSegment(Vector(0.165385, 0.15, 0), Vector(0.165385, -0.15, 0)),
    Part.LineSegment(Vector(0.165385, -0.15, 0), Vector(0.140625, -0.15, 0)),
    Part.BSplineCurve([Vector(0.057692, -0.075, 0), Vector(0.062498, -0.077475, 0), Vector(0.071971, -0.082354, 0), Vector(0.085354, -0.090779, 0), Vector(0.097848, -0.099913, 0), Vector(0.109247, -0.109753, 0), Vector(0.119465, -0.119811, 0), Vector(0.128076, -0.12996, 0), Vector(0.135282, -0.139828, 0), Vector(0.138897, -0.14671, 0), Vector(0.140625, -0.15, 0)], [4, 1, 1, 1, 1, 1, 1, 1, 4], [0, 0.000016212, 0.000031953, 0.000047386, 0.0000626, 0.000077091, 0.000090349, 0.000102505, 0.000113642], False, 3, [1, 1, 1, 1, 1, 1, 1, 1, 1, 1, 1], False),
    Part.LineSegment(Vector(0.057692, -0.075, 0), Vector(0.057692, -0.039543, 0)),
    Part.BSplineCurve([Vector(0.126923, -0.083774, 0), Vector(0.124708, -0.081638, 0), Vector(0.120106, -0.077199, 0), Vector(0.112325, -0.070917, 0), Vector(0.103641, -0.06455, 0), Vector(0.094166, -0.058427, 0), Vector(0.084508, -0.052663, 0), Vector(0.075174, -0.04748, 0), Vector(0.066322, -0.043093, 0), Vector(0.06049, -0.040694, 0), Vector(0.057692, -0.039543, 0)], [4, 1, 1, 1, 1, 1, 1, 1, 4], [0, 0.000009226, 0.000019175, 0.000029969, 0.000041521, 0.000053002, 0.000063707, 0.000073544, 0.000082619], False, 3, [1, 1, 1, 1, 1, 1, 1, 1, 1, 1, 1], False),
    Part.LineSegment(Vector(0.126923, -0.083774, 0), Vector(0.126923, 0.15, 0)),
    Part.LineSegment(Vector(0.45, 0.15, 0), Vector(0.45, 0.111538, 0)),
    Part.LineSegment(Vector(0.45, 0.111538, 0), Vector(0.303245, 0.111538, 0)),
    Part.BSplineCurve([Vector(0.362921, 0.055889, 0), Vector(0.360293, 0.058029, 0), Vector(0.355282, 0.062108, 0), Vector(0.348154, 0.068021, 0), Vector(0.341769, 0.073444, 0), Vector(0.335978, 0.078199, 0), Vector(0.330993, 0.082516, 0), Vector(0.326637, 0.086206, 0), Vector(0.323068, 0.089454, 0), Vector(0.317634, 0.094389, 0), Vector(0.310752, 0.101422, 0), Vector(0.30568, 0.108257, 0), Vector(0.303245, 0.111538, 0)], [4, 1, 1, 1, 1, 1, 1, 1, 1, 1, 4], [0, 0.000010165, 0.000019383, 0.000027786, 0.000035295, 0.000041859, 0.000047569, 0.00005242, 0.000056334, 0.000069594, 0.000081844], False, 3, [1, 1, 1, 1, 1, 1, 1, 1, 1, 1, 1, 1, 1], False),
    Part.BSplineCurve([Vector(0.446154, -0.067187, 0), Vector(0.446071, -0.064219, 0), Vector(0.445906, -0.058275, 0), Vector(0.444613, -0.04939, 0), Vector(0.442402, -0.040602, 0), Vector(0.439471, -0.031803, 0), Vector(0.435467, -0.022959, 0), Vector(0.430408, -0.013948, 0), Vector(0.424131, -0.004735, 0), Vector(0.418095, 0.003096, 0), Vector(0.412477, 0.009661, 0), Vector(0.407496, 0.015064, 0), Vector(0.401734, 0.020805, 0), Vector(0.395407, 0.027082, 0), Vector(0.388256, 0.033672, 0), Vector(0.380487, 0.040773, 0), Vector(0.37193, 0.048197, 0), Vector(0.365989, 0.053269, 0), Vector(0.362921, 0.055889, 0)], [4, 1, 1, 1, 1, 1, 1, 1, 1, 1, 1, 1, 1, 1, 1, 1, 4], [0, 0.000008904, 0.000017828, 0.000026865, 0.000036063, 0.000045612, 0.000055944, 0.000067028, 0.000079024, 0.000085588, 0.000092946, 0.000101063, 0.000109987, 0.000119681, 0.000130232, 0.000141562, 0.000153666], False, 3, [1, 1, 1, 1, 1, 1, 1, 1, 1, 1, 1, 1, 1, 1, 1, 1, 1, 1, 1], False),
    Part.BSplineCurve([Vector(0.353846, -0.15, 0), Vector(0.357315, -0.149941, 0), Vector(0.364073, -0.149825, 0), Vector(0.37392, -0.148641, 0), Vector(0.383211, -0.146797, 0), Vector(0.39198, -0.144227, 0), Vector(0.400175, -0.140856, 0), Vector(0.407803, -0.136739, 0), Vector(0.414898, -0.131914, 0), Vector(0.421343, -0.126324, 0), Vector(0.427154, -0.120221, 0), Vector(0.432246, -0.113708, 0), Vector(0.436504, -0.106813, 0), Vector(0.440129, -0.09963, 0), Vector(0.442818, -0.092006, 0), Vector(0.444709, -0.084046, 0), Vector(0.445994, -0.075743, 0), Vector(0.4461, -0.070077, 0), Vector(0.446154, -0.067187, 0)], [4, 1, 1, 1, 1, 1, 1, 1, 1, 1, 1, 1, 1, 1, 1, 1, 4], [0, 0.000010403, 0.000020265, 0.000029705, 0.000038794, 0.000047633, 0.000056238, 0.000064755, 0.000073321, 0.00008178, 0.000090002, 0.000098073, 0.000106055, 0.000114096, 0.000122258, 0.000130579, 0.00013924], False, 3, [1, 1, 1, 1, 1, 1, 1, 1, 1, 1, 1, 1, 1, 1, 1, 1, 1, 1, 1], False),
    Part.BSplineCurve([Vector(0.257692, -0.065385, 0), Vector(0.258086, -0.068737, 0), Vector(0.258851, -0.075258, 0), Vector(0.260758, -0.084702, 0), Vector(0.263435, -0.093489, 0), Vector(0.266639, -0.101739, 0), Vector(0.270654, -0.109313, 0), Vector(0.275194, -0.116367, 0), Vector(0.280548, -0.122678, 0), Vector(0.286463, -0.128444, 0), Vector(0.293003, -0.133526, 0), Vector(0.300108, -0.137965, 0), Vector(0.307773, -0.141679, 0), Vector(0.315956, -0.144753, 0), Vector(0.324677, -0.147086, 0), Vector(0.333922, -0.148759, 0), Vector(0.343707, -0.14979, 0), Vector(0.350418, -0.149929, 0), Vector(0.353846, -0.15, 0)], [4, 1, 1, 1, 1, 1, 1, 1, 1, 1, 1, 1, 1, 1, 1, 1, 4], [0, 0.000010123, 0.000019693, 0.000028857, 0.000037651, 0.000046199, 0.000054533, 0.000062766, 0.000070968, 0.000079275, 0.000087563, 0.000096056, 0.000104785, 0.00011375, 0.000123098, 0.000132946, 0.000143229], False, 3, [1, 1, 1, 1, 1, 1, 1, 1, 1, 1, 1, 1, 1, 1, 1, 1, 1, 1, 1], False),
    Part.LineSegment(Vector(0.257692, -0.065385, 0), Vector(0.296154, -0.061538, 0)),
    Part.BSplineCurve([Vector(0.353005, -0.115385, 0), Vector(0.35092, -0.115337, 0), Vector(0.346838, -0.115243, 0), Vector(0.340873, -0.114561, 0), Vector(0.33521, -0.113518, 0), Vector(0.329862, -0.111925, 0), Vector(0.324837, -0.109917, 0), Vector(0.320155, -0.10739, 0), Vector(0.315741, -0.104537, 0), Vector(0.311733, -0.10116, 0), Vector(0.308109, -0.097415, 0), Vector(0.304892, -0.093338, 0), Vector(0.302256, -0.08885, 0), Vector(0.300079, -0.08405, 0), Vector(0.298328, -0.078923, 0), Vector(0.297057, -0.07343, 0), Vector(0.296364, -0.067585, 0), Vector(0.296225, -0.063583, 0), Vector(0.296154, -0.061538, 0)], [4, 1, 1, 1, 1, 1, 1, 1, 1, 1, 1, 1, 1, 1, 1, 1, 4], [0, 0.000006255, 0.000012241, 0.000017992, 0.000023507, 0.000028953, 0.000034195, 0.000039446, 0.000044693, 0.000049878, 0.00005506, 0.000060233, 0.000065451, 0.000070848, 0.000076461, 0.000082334, 0.000088471], False, 3, [1, 1, 1, 1, 1, 1, 1, 1, 1, 1, 1, 1, 1, 1, 1, 1, 1, 1, 1], False),
    Part.BSplineCurve([Vector(0.407692, -0.066827, 0), Vector(0.407651, -0.068513, 0), Vector(0.407569, -0.071821, 0), Vector(0.406791, -0.076662, 0), Vector(0.405709, -0.081324, 0), Vector(0.40396, -0.085723, 0), Vector(0.401877, -0.08999, 0), Vector(0.399206, -0.093989, 0), Vector(0.396116, -0.09782, 0), Vector(0.392578, -0.101382, 0), Vector(0.388714, -0.104724, 0), Vector(0.384396, -0.107502, 0), Vector(0.379909, -0.110003, 0), Vector(0.375097, -0.112014, 0), Vector(0.369967, -0.113491, 0), Vector(0.364559, -0.114563, 0), Vector(0.358871, -0.115242, 0), Vector(0.35499, -0.115336, 0), Vector(0.353005, -0.115385, 0)], [4, 1, 1, 1, 1, 1, 1, 1, 1, 1, 1, 1, 1, 1, 1, 1, 4], [0, 0.000005054, 0.000009915, 0.000014681, 0.00001938, 0.000024083, 0.0000289, 0.000033772, 0.000038829, 0.000043946, 0.000049063, 0.000054199, 0.000059345, 0.000064669, 0.000070185, 0.000075872, 0.000081827], False, 3, [1, 1, 1, 1, 1, 1, 1, 1, 1, 1, 1, 1, 1, 1, 1, 1, 1, 1, 1], False),
    Part.BSplineCurve([Vector(0.327043, 0.0378, 0), Vector(0.330903, 0.034551, 0), Vector(0.338336, 0.028295, 0), Vector(0.348833, 0.019012, 0), Vector(0.35842, 0.010391, 0), Vector(0.366944, 0.002283, 0), Vector(0.374476, -0.005234, 0), Vector(0.381033, -0.012144, 0), Vector(0.386672, -0.018424, 0), Vector(0.391323, -0.024302, 0), Vector(0.395247, -0.029852, 0), Vector(0.398573, -0.035267, 0), Vector(0.401344, -0.040639, 0), Vector(0.403652, -0.045953, 0), Vector(0.405478, -0.05123, 0), Vector(0.406722, -0.056487, 0), Vector(0.407566, -0.061671, 0), Vector(0.407651, -0.065121, 0), Vector(0.407692, -0.066827, 0)], [4, 1, 1, 1, 1, 1, 1, 1, 1, 1, 1, 1, 1, 1, 1, 1, 4], [0, 0.000015136, 0.000029145, 0.000042036, 0.000053811, 0.000064435, 0.000073957, 0.000082386, 0.000089745, 0.00009643, 0.000102769, 0.00010879, 0.00011455, 0.000120137, 0.000125516, 0.000130743, 0.000135857], False, 3, [1, 1, 1, 1, 1, 1, 1, 1, 1, 1, 1, 1, 1, 1, 1, 1, 1, 1, 1], False),
    Part.BSplineCurve([Vector(0.257873, 0.123317, 0), Vector(0.259145, 0.119803, 0), Vector(0.261737, 0.112646, 0), Vector(0.266988, 0.10232, 0), Vector(0.273163, 0.092056, 0), Vector(0.279177, 0.0837, 0), Vector(0.284683, 0.077025, 0), Vector(0.289301, 0.071801, 0), Vector(0.294419, 0.066455, 0), Vector(0.300032, 0.060986, 0), Vector(0.306087, 0.05536, 0), Vector(0.312591, 0.049556, 0), Vector(0.319622, 0.043685, 0), Vector(0.324531, 0.039793, 0), Vector(0.327043, 0.0378, 0)], [4, 1, 1, 1, 1, 1, 1, 1, 1, 1, 1, 1, 4], [0, 0.000011205, 0.000022816, 0.000034678, 0.00004712, 0.000053653, 0.000060635, 0.000068031, 0.000075851, 0.000084142, 0.000092826, 0.000101998, 0.000111618], False, 3, [1, 1, 1, 1, 1, 1, 1, 1, 1, 1, 1, 1, 1, 1, 1], False),
    Part.BSplineCurve([Vector(0.253846, 0.15, 0), Vector(0.253842, 0.147714, 0), Vector(0.253834, 0.14315, 0), Vector(0.254606, 0.1364, 0), Vector(0.255816, 0.12974, 0), Vector(0.257184, 0.125468, 0), Vector(0.257873, 0.123317, 0)], [4, 1, 1, 1, 4], [0, 0.000006852, 0.000013681, 0.000020352, 0.000027121], False, 3, [1, 1, 1, 1, 1, 1, 1], False),
    Part.LineSegment(Vector(0.253846, 0.15, 0), Vector(0.45, 0.15, 0)),
], False)
sketch2.addConstraint([
    Sketcher.Constraint("Block", 2),
    Sketcher.Constraint("Block", 3),
    Sketcher.Constraint("Block", 4),
    Sketcher.Constraint("Block", 5),
    Sketcher.Constraint("Block", 7),
    Sketcher.Constraint("Block", 8),
    Sketcher.Constraint("Block", 9),
    Sketcher.Constraint("Block", 10),
    Sketcher.Constraint("Block", 11),
    Sketcher.Constraint("Block", 14),
    Sketcher.Constraint("Block", 15),
    Sketcher.Constraint("Block", 16),
    Sketcher.Constraint("Block", 17),
    Sketcher.Constraint("Block", 18),
    Sketcher.Constraint("Block", 25),
    Sketcher.Constraint("Block", 26),
    Sketcher.Constraint("Block", 27),
    Sketcher.Constraint("Block", 28),
    Sketcher.Constraint("Block", 32),
    Sketcher.Constraint("Block", 34),
    Sketcher.Constraint("Block", 38),
    Sketcher.Constraint("Block", 39),
    Sketcher.Constraint("Block", 40),
    Sketcher.Constraint("Block", 41),
    Sketcher.Constraint("Block", 43),
    Sketcher.Constraint("Block", 44),
    Sketcher.Constraint("Block", 45),
    Sketcher.Constraint("Block", 46),
    Sketcher.Constraint("Block", 47),
    Sketcher.Constraint("Coincident", 0, 2, 1, 1),
    Sketcher.Constraint("Coincident", 1, 2, 2, 2),
    Sketcher.Constraint("Coincident", 5, 1, 6, 1),
    Sketcher.Constraint("Coincident", 6, 2, 7, 2),
    Sketcher.Constraint("Coincident", 11, 1, 12, 1),
    Sketcher.Constraint("Coincident", 12, 2, 0, 1),
    Sketcher.Constraint("Coincident", 13, 2, 14, 2),
    Sketcher.Constraint("Coincident", 18, 1, 19, 1),
    Sketcher.Constraint("Coincident", 19, 2, 20, 1),
    Sketcher.Constraint("Coincident", 20, 2, 21, 1),
    Sketcher.Constraint("Coincident", 21, 2, 22, 1),
    Sketcher.Constraint("Coincident", 22, 2, 23, 1),
    Sketcher.Constraint("Coincident", 23, 2, 24, 1),
    Sketcher.Constraint("Coincident", 24, 2, 25, 2),
    Sketcher.Constraint("Coincident", 28, 1, 13, 1),
    Sketcher.Constraint("Coincident", 29, 2, 30, 1),
    Sketcher.Constraint("Coincident", 30, 2, 31, 1),
    Sketcher.Constraint("Coincident", 31, 2, 32, 2),
    Sketcher.Constraint("Coincident", 32, 1, 33, 1),
    Sketcher.Constraint("Coincident", 33, 2, 34, 2),
    Sketcher.Constraint("Coincident", 34, 1, 35, 1),
    Sketcher.Constraint("Coincident", 35, 2, 29, 1),
    Sketcher.Constraint("Coincident", 36, 2, 37, 1),
    Sketcher.Constraint("Coincident", 37, 2, 38, 2),
    Sketcher.Constraint("Coincident", 41, 1, 42, 1),
    Sketcher.Constraint("Coincident", 42, 2, 43, 2),
    Sketcher.Constraint("Coincident", 47, 1, 48, 1),
    Sketcher.Constraint("Coincident", 48, 2, 36, 1),
    Sketcher.Constraint("Vertical", 0),
    Sketcher.Constraint("Horizontal", 1),
    Sketcher.Constraint("Horizontal", 12),
    Sketcher.Constraint("Horizontal", 20),
    Sketcher.Constraint("Vertical", 21),
    Sketcher.Constraint("Horizontal", 22),
    Sketcher.Constraint("Horizontal", 29),
    Sketcher.Constraint("Vertical", 30),
    Sketcher.Constraint("Horizontal", 31),
    Sketcher.Constraint("Vertical", 35),
    Sketcher.Constraint("Vertical", 36),
    Sketcher.Constraint("Horizontal", 37),
    Sketcher.Constraint("Horizontal", 48),
    Sketcher.Constraint("DistanceY", 30, 2, 30, 1, Q("0.3 mm")),
    Sketcher.Constraint("DistanceX", -1, 1, 36, 2, Q("0.45 mm")),
    Sketcher.Constraint("DistanceX", 20, 2, 35, 2, Q("0.15 mm")),
    Sketcher.Constraint("DistanceX", 29, 1, 29, 2, Q("0.038462 mm")),
    Sketcher.Constraint("DistanceY", 21, 2, 21, 1, Q("0.038462 mm")),
    Sketcher.Constraint("DistanceX", 6, 2, 19, 2, Q("0.2622 mm")),
    Sketcher.Constraint("DistanceX", 23, 2, 19, 2, Q("0.0622 mm")),
    Sketcher.Constraint("Distance", 19, Q("0.079189 mm")),
    Sketcher.Constraint("DistanceX", 1, 2, 1, 1, Q("0.146755 mm")),
    Sketcher.Constraint("DistanceX", 22, 2, 22, 1, Q("0.142308 mm")),
    Sketcher.Constraint("DistanceY", 23, 2, 13, 2, Q("0.061538 mm")),
])
pad2 = body.newObject("PartDesign::Pad", "Pad001")
pad2.Profile = sketch2
pad2.Length = 0.002
pad2.Reversed = True

doc.recompute()
